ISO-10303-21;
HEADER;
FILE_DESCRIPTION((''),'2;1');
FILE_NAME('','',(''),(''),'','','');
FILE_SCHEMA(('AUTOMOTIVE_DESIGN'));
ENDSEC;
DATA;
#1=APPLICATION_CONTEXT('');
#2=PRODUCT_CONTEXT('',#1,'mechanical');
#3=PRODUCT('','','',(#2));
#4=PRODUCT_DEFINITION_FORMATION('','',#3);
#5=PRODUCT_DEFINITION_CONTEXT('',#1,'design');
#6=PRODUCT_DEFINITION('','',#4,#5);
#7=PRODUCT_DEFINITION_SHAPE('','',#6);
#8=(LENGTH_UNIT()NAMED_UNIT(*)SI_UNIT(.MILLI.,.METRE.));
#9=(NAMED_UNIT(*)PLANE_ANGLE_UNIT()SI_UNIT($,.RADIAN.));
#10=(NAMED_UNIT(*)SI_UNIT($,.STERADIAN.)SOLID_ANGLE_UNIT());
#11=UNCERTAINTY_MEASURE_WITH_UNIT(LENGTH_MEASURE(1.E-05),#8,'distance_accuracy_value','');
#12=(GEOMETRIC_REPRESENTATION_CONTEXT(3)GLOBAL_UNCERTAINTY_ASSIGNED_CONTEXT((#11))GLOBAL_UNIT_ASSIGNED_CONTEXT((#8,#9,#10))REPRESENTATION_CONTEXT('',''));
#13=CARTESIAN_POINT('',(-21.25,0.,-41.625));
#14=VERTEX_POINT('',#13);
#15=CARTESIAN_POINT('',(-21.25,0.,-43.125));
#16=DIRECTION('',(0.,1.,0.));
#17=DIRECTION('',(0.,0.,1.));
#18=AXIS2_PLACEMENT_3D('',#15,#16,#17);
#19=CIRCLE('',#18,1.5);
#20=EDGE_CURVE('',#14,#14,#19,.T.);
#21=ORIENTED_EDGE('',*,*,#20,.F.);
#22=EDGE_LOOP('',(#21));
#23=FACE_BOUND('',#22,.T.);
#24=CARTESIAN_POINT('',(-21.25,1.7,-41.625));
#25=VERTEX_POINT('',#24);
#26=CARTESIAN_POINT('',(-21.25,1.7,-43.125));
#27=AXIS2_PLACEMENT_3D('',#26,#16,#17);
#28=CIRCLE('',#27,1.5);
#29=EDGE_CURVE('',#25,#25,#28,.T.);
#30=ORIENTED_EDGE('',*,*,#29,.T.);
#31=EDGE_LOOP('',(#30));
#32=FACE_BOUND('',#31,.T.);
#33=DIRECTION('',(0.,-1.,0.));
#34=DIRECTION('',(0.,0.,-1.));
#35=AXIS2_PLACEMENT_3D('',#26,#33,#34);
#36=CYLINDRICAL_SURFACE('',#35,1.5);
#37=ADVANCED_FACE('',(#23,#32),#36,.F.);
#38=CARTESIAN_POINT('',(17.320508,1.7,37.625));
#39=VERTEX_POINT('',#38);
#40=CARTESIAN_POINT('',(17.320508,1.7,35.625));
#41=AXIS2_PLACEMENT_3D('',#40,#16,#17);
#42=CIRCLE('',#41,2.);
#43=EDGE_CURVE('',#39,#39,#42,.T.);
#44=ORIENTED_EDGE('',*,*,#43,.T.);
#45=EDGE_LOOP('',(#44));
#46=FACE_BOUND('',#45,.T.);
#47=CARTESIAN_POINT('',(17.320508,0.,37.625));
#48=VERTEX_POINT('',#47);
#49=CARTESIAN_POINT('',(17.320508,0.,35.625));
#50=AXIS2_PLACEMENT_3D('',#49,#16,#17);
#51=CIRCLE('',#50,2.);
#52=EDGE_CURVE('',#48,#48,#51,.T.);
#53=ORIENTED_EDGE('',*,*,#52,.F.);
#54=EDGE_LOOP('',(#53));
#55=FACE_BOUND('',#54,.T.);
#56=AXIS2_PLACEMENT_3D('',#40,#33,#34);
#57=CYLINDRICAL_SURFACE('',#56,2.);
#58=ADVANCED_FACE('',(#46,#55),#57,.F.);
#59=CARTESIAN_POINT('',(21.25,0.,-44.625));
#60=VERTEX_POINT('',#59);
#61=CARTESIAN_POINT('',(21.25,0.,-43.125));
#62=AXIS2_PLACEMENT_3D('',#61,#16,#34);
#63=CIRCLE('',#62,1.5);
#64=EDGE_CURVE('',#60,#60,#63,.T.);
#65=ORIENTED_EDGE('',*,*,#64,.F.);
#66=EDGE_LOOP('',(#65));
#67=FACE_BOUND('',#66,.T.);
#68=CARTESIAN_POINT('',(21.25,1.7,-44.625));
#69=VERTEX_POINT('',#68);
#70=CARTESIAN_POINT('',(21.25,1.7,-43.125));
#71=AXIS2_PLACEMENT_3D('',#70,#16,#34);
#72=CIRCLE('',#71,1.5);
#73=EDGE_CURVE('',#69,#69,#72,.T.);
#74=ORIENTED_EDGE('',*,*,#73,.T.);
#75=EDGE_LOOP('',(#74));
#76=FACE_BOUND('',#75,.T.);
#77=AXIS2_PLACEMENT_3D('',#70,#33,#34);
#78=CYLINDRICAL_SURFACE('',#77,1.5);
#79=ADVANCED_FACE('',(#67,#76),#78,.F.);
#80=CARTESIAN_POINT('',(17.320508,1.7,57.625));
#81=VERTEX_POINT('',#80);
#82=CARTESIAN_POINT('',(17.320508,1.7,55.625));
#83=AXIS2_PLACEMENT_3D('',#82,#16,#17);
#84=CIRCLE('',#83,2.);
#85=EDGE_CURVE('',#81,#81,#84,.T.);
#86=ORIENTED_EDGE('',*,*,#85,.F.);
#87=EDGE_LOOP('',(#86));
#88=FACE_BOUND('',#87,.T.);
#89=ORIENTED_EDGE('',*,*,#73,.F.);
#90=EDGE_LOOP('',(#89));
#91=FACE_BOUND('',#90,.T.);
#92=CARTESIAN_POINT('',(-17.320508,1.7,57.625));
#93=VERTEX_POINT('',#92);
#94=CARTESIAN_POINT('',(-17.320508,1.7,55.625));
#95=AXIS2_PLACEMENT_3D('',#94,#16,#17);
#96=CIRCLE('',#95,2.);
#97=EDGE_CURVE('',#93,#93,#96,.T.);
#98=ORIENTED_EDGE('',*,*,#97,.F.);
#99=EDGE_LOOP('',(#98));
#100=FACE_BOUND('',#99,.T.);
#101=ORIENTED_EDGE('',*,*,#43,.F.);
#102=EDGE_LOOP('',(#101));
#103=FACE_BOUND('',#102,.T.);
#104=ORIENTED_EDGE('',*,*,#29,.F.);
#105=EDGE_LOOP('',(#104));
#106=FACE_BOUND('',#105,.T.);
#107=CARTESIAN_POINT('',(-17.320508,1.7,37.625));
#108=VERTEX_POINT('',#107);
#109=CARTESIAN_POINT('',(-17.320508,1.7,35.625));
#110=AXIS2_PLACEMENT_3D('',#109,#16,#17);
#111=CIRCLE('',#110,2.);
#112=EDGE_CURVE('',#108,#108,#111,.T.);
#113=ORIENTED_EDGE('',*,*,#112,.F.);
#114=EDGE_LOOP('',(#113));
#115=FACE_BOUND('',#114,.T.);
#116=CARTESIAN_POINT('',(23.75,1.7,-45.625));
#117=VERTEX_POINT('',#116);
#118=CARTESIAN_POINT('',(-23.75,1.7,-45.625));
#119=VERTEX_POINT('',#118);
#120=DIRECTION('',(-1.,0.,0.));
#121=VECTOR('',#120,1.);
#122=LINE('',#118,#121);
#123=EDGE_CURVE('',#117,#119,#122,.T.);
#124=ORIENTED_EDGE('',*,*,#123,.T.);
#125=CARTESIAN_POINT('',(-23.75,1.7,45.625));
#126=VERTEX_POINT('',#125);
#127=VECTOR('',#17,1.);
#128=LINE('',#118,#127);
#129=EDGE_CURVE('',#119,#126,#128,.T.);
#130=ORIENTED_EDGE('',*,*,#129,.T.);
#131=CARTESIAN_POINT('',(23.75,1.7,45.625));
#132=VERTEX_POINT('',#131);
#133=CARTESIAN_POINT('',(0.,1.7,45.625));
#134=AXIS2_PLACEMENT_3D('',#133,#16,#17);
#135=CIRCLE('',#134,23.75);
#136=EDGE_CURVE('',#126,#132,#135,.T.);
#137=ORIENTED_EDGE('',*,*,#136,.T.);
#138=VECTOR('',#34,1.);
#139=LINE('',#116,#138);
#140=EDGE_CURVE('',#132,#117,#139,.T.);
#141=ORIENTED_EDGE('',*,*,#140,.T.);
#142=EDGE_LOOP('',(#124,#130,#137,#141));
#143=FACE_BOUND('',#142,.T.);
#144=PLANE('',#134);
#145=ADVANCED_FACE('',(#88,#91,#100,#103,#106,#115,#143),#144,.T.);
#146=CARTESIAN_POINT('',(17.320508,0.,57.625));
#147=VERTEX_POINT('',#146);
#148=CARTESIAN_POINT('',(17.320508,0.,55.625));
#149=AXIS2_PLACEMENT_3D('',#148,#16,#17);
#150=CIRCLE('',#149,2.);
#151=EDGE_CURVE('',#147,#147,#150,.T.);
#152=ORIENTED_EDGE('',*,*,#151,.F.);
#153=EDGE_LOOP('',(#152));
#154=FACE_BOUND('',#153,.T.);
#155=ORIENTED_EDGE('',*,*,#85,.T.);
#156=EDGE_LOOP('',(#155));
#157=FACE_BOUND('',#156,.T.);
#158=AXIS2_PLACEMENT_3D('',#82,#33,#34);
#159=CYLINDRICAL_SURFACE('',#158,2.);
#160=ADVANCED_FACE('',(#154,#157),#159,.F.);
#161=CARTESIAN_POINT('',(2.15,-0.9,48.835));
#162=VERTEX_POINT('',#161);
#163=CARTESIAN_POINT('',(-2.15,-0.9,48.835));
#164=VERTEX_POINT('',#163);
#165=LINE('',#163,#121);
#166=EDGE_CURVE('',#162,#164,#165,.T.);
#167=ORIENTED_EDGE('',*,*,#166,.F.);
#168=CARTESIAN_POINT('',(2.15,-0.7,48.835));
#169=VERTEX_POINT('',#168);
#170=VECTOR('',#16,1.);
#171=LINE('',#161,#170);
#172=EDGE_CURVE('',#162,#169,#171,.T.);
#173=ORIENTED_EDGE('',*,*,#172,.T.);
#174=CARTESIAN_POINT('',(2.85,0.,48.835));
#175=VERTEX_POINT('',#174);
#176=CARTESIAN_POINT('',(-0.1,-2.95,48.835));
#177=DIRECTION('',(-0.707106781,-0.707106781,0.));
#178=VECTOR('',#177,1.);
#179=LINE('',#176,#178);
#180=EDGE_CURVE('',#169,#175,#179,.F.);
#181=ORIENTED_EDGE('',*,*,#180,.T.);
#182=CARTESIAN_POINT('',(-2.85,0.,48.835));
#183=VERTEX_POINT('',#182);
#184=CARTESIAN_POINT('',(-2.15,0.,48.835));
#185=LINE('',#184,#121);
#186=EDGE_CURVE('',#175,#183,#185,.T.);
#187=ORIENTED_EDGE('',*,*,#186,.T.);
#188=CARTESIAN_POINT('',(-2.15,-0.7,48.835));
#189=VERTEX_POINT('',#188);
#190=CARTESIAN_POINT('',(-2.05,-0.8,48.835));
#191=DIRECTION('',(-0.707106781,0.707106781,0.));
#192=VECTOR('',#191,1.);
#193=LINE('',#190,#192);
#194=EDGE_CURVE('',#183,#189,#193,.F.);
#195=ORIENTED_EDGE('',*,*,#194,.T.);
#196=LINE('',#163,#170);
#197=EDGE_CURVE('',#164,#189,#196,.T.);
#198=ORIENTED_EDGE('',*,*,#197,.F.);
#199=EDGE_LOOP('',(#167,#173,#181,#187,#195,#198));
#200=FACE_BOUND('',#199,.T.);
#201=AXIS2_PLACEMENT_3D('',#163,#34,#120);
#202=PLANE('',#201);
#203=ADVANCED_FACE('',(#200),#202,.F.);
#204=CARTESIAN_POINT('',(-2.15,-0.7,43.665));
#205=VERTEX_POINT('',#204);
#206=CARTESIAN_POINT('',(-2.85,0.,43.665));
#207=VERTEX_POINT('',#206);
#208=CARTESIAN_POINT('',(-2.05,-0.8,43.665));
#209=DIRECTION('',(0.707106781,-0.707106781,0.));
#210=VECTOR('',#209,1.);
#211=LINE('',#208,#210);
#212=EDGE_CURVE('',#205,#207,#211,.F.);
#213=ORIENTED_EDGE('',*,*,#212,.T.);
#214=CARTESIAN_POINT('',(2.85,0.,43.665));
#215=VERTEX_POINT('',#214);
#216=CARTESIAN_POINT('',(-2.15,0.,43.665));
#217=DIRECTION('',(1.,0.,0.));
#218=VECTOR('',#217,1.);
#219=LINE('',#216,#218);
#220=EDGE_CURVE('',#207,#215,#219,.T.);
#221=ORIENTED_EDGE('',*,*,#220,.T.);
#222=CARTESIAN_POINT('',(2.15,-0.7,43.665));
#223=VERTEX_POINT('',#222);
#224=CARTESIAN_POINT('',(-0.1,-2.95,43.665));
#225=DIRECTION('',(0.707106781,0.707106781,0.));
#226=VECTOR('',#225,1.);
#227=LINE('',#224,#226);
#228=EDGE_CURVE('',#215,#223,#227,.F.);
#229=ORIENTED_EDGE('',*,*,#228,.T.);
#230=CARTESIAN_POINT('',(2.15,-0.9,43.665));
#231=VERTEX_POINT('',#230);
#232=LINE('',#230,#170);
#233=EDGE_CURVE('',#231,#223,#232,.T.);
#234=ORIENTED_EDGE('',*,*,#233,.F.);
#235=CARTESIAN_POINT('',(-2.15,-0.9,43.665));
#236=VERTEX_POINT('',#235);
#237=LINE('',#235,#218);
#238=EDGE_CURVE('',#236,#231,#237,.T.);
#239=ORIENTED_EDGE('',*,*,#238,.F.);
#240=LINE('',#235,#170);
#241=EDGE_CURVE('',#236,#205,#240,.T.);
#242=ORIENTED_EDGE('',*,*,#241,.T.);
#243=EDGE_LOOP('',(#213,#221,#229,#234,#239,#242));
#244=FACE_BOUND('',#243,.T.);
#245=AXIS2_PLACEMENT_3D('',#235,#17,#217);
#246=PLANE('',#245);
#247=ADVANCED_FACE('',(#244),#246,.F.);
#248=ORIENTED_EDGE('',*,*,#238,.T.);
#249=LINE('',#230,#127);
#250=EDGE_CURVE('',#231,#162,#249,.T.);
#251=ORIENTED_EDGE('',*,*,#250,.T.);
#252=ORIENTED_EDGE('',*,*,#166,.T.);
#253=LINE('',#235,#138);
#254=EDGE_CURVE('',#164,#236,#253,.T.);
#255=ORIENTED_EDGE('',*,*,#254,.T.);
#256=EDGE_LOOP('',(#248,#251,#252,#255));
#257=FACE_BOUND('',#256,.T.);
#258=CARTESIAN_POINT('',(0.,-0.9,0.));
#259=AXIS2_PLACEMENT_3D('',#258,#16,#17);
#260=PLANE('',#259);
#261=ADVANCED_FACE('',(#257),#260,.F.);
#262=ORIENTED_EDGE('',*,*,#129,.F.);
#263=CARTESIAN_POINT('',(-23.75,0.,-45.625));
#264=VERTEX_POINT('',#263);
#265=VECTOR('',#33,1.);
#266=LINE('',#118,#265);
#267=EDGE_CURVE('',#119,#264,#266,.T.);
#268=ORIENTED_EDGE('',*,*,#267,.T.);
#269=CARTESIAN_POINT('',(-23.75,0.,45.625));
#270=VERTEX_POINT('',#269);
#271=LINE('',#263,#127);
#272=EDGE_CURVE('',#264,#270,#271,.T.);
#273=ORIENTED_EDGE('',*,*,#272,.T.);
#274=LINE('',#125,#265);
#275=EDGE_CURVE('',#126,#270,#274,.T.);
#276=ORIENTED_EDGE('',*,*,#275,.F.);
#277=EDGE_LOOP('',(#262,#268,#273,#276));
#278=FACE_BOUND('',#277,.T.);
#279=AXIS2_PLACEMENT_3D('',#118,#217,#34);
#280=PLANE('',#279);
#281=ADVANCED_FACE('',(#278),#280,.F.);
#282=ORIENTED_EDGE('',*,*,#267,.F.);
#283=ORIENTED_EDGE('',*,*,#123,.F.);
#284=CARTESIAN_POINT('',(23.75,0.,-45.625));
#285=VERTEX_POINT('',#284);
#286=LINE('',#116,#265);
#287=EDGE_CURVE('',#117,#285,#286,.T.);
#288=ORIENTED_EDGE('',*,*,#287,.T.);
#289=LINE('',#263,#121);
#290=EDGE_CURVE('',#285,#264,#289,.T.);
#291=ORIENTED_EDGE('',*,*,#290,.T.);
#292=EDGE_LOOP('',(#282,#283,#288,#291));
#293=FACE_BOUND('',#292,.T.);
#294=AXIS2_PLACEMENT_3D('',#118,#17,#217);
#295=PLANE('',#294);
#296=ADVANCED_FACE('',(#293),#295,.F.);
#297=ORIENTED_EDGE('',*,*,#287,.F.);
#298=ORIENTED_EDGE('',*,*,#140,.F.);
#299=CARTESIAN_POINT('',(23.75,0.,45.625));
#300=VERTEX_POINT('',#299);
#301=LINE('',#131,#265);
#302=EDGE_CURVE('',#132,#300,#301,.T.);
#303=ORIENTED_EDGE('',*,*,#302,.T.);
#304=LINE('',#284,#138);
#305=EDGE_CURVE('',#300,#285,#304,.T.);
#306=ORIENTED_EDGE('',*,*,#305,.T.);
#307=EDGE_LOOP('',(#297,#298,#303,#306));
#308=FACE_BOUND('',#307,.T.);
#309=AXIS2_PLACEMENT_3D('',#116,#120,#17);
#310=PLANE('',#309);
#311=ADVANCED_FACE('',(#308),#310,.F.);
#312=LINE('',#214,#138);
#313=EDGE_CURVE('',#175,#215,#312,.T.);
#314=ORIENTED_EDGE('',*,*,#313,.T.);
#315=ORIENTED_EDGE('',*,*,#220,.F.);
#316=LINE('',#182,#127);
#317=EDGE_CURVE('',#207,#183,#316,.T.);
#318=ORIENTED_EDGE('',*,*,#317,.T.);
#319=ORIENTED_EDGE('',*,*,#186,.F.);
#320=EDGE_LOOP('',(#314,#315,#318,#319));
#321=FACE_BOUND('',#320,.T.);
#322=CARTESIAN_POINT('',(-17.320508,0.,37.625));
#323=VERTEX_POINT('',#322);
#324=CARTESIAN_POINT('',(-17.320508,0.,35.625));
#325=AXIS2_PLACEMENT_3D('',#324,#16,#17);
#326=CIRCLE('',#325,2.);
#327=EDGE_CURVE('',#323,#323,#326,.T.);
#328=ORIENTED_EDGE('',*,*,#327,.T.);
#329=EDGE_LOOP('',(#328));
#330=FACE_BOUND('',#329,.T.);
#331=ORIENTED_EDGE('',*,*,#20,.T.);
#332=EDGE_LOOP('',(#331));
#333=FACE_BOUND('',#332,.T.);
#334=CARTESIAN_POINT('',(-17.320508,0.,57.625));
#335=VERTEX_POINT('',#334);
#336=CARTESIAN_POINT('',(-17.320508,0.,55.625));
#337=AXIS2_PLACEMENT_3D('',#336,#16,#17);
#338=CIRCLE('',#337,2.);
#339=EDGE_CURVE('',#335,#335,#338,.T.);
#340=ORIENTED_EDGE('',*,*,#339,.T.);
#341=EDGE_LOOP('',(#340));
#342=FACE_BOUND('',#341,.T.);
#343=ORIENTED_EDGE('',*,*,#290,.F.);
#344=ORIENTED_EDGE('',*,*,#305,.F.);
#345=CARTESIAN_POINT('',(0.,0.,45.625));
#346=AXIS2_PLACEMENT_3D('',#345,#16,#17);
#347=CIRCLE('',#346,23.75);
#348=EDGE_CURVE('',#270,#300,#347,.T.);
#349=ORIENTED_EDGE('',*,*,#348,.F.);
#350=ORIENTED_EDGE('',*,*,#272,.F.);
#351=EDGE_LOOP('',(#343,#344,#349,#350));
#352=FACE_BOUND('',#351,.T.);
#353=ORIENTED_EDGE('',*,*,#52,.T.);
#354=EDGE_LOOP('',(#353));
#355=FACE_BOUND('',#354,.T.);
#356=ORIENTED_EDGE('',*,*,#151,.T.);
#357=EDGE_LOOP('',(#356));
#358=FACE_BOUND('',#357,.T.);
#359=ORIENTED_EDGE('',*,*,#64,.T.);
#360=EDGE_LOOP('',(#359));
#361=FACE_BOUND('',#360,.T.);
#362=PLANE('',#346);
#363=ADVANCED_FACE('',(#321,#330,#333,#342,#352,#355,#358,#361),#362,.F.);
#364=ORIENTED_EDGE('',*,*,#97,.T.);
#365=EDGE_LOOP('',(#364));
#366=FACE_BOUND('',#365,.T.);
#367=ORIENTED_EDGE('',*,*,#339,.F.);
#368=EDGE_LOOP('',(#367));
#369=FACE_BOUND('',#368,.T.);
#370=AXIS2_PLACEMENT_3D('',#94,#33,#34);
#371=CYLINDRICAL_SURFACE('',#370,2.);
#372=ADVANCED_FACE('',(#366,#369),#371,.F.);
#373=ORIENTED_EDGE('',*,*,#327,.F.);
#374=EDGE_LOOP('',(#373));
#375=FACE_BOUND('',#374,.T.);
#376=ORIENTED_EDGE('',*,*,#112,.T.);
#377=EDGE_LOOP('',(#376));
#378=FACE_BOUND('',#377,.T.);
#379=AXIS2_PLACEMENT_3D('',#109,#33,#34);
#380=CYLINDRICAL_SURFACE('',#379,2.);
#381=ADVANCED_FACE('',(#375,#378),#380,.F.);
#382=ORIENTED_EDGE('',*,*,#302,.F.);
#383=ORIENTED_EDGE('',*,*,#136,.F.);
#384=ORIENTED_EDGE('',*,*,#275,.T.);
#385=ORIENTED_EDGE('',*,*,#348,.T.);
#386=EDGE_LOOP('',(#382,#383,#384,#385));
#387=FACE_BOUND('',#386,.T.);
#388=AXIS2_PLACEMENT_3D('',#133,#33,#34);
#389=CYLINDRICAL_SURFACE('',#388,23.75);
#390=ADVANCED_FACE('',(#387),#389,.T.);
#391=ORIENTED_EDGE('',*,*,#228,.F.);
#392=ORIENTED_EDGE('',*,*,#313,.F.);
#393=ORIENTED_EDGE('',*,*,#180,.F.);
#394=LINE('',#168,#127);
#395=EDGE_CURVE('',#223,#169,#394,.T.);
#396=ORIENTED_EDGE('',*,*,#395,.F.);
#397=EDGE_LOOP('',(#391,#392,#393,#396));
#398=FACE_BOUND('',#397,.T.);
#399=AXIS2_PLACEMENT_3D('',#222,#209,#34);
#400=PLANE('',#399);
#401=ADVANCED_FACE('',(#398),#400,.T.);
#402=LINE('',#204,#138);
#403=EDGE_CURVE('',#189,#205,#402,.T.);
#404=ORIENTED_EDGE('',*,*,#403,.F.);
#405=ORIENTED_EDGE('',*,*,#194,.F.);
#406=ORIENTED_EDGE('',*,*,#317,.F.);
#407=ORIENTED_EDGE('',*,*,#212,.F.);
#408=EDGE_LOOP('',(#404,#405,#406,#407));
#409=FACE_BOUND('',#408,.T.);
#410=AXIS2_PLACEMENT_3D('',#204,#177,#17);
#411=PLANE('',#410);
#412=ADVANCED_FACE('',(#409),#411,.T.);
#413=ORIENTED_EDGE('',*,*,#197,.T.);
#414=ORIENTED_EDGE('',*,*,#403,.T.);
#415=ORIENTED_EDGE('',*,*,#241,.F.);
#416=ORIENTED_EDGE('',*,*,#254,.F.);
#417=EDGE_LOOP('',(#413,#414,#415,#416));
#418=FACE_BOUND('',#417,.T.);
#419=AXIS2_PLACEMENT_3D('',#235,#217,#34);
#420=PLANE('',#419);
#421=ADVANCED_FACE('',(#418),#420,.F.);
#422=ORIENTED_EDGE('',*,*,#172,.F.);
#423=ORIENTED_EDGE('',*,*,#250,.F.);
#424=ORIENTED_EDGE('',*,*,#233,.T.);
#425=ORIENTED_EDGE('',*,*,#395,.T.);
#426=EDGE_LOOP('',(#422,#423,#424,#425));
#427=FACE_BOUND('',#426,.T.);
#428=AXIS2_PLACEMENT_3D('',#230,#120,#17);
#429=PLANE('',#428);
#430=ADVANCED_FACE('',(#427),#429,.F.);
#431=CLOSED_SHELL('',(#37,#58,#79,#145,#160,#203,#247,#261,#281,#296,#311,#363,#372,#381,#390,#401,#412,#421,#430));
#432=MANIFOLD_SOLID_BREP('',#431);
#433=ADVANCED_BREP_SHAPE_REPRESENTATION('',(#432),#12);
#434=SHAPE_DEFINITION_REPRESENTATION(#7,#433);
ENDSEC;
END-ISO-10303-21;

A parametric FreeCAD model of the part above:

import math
import FreeCAD as App
import Part
import Sketcher


def edges_at(feature, points):
    """Names of the edges that pass closest to the given points."""
    edges = feature.Shape.Edges
    near = lambda p: min(range(len(edges)), key=lambda i: edges[i].distToShape(Part.Vertex(*p))[0])
    return sorted({f"Edge{near(p) + 1}" for p in points})


def add_polygon(sketch, points):
    """Adds a closed chain of lines whose ends are joined by coincident constraints."""
    first, n = sketch.GeometryCount, len(points)
    for a, b in zip(points, points[1:] + points[:1]):
        sketch.addGeometry(Part.LineSegment(App.Vector(*a, 0), App.Vector(*b, 0)), False)
    for i in range(n):
        sketch.addConstraint(Sketcher.Constraint("Coincident", first + i, 2, first + (i + 1) % n, 1))

doc = App.newDocument("Part")
params = doc.addObject("Spreadsheet::Sheet", "Params")
for row, (alias, value) in enumerate([
    ("sketch1_diameter", "4 mm"),
    ("sketch1_diameter2", "3 mm"),
    ("sketch1_radius", "23.75 mm"),
    ("sketch1_height", "91.25 mm"),
    ("pad1_length", "1.7 mm"),
    ("sketch2_width", "4.3 mm"),
    ("sketch2_height", "5.17 mm"),
    ("pad2_length", "0.9 mm"),
    ("chamfer_size", "0.7 mm"),
], start=1):
    params.set(f"A{row}", alias)
    params.set(f"B{row}", "=" + value)
    params.setAlias(f"B{row}", alias)

body = doc.addObject("PartDesign::Body", "Body")

# Sketch on XZ plane
sketch1 = body.newObject("Sketcher::SketchObject", "Sketch")
sketch1.AttachmentSupport = (doc.getObject("XZ_Plane"), [""])
sketch1.MapMode = "FlatFace"
sketch1.addGeometry([
    Part.LineSegment(App.Vector(23.8, -45.6, 0), App.Vector(-23.8, -45.6, 0)),  # 0
    Part.LineSegment(App.Vector(-23.8, -45.6, 0), App.Vector(-23.8, 45.6, 0)),  # 1
    Part.ArcOfCircle(Part.Circle(App.Vector(0, 45.6, 0), App.Vector(0, 0, 1), 23.8), math.radians(0), math.radians(180)),  # 2
    Part.LineSegment(App.Vector(23.8, 45.6, 0), App.Vector(23.8, -45.6, 0)),  # 3
    Part.Circle(App.Vector(17.3, 55.6, 0), App.Vector(0, 0, 1), 2),  # 4
    Part.Circle(App.Vector(17.3, 35.6, 0), App.Vector(0, 0, 1), 2),  # 5
    Part.Circle(App.Vector(-17.3, 55.6, 0), App.Vector(0, 0, 1), 2),  # 6
    Part.Circle(App.Vector(-17.3, 35.6, 0), App.Vector(0, 0, 1), 2),  # 7
    Part.Circle(App.Vector(21.2, -43.1, 0), App.Vector(0, 0, 1), 1.5),  # 8
    Part.Circle(App.Vector(-21.2, -43.1, 0), App.Vector(0, 0, 1), 1.5),  # 9
], False)
sketch1.addConstraint([
    Sketcher.Constraint("Coincident", 0, 2, 1, 1),
    Sketcher.Constraint("Tangent", 1, 2, 2, 2),
    Sketcher.Constraint("Tangent", 2, 1, 3, 1),
    Sketcher.Constraint("Coincident", 3, 2, 0, 1),
    Sketcher.Constraint("Horizontal", 0),
    Sketcher.Constraint("Vertical", 1),
    Sketcher.Constraint("Vertical", 3),
    Sketcher.Constraint("Equal", 4, 5),
    Sketcher.Constraint("Equal", 5, 6),
    Sketcher.Constraint("Equal", 6, 7),
    Sketcher.Constraint("Equal", 8, 9),
    Sketcher.Constraint("Symmetric", 0, 2, 2, 1, -1, 1),
    Sketcher.Constraint("Symmetric", 4, 3, 6, 3, -2),
    Sketcher.Constraint("Symmetric", 5, 3, 7, 3, -2),
    Sketcher.Constraint("Symmetric", 8, 3, 9, 3, -2),
    Sketcher.Constraint("Vertical", 4, 3, 5, 3),
    Sketcher.Constraint("Diameter", 4, 4.0),
    Sketcher.Constraint("Diameter", 8, 3.0),
    Sketcher.Constraint("Radius", 2, 23.75),
    Sketcher.Constraint("DistanceY", 2, 3, 4, 3, 10.0),
    Sketcher.Constraint("DistanceY", 5, 3, 4, 3, 20.0),
    Sketcher.Constraint("DistanceX", 0, 2, 8, 3, 45.0),
    Sketcher.Constraint("DistanceY", 1, 1, 1, 2, 91.25),
    Sketcher.Constraint("DistanceY", 0, 2, 9, 3, 2.5),
    Sketcher.Constraint("DistanceX", -1, 1, 4, 3, 17.320508),
])
sketch1.setExpression("Constraints[16]", "Params.sketch1_diameter")
sketch1.setExpression("Constraints[17]", "Params.sketch1_diameter2")
sketch1.setExpression("Constraints[18]", "Params.sketch1_radius")
sketch1.setExpression("Constraints[22]", "Params.sketch1_height")
pad1 = body.newObject("PartDesign::Pad", "Pad")
pad1.Profile = sketch1
pad1.setExpression("Length", "Params.pad1_length")
pad1.Reversed = True

# Sketch on XZ plane
sketch2 = body.newObject("Sketcher::SketchObject", "Sketch001")
sketch2.AttachmentSupport = (doc.getObject("XZ_Plane"), [""])
sketch2.MapMode = "FlatFace"
add_polygon(sketch2, [(-2.1, 48.8), (-2.1, 43.7), (2.1, 43.7), (2.1, 48.8)])  # lines 0-3
sketch2.addConstraint([
    Sketcher.Constraint("Vertical", 0),
    Sketcher.Constraint("Horizontal", 1),
    Sketcher.Constraint("Vertical", 2),
    Sketcher.Constraint("Horizontal", 3),
    Sketcher.Constraint("DistanceX", 1, 1, 1, 2, 4.3),
    Sketcher.Constraint("DistanceY", 0, 2, 0, 1, 5.17),
    Sketcher.Constraint("DistanceX", 0, 2, -1, 1, 2.15),
    Sketcher.Constraint("DistanceY", -1, 1, 0, 2, 43.665),
])
sketch2.setExpression("Constraints[8]", "Params.sketch2_width")
sketch2.setExpression("Constraints[9]", "Params.sketch2_height")
pad2 = body.newObject("PartDesign::Pad", "Pad001")
pad2.Profile = sketch2
pad2.setExpression("Length", "Params.pad2_length")
doc.recompute()

chamfer = body.newObject("PartDesign::Chamfer", "Chamfer")
chamfer.Base = (pad2, edges_at(pad2, [(2.15, 0, 46.25), (-2.15, 0, 46.25)]))
chamfer.setExpression("Size", "Params.chamfer_size")

doc.recompute()
